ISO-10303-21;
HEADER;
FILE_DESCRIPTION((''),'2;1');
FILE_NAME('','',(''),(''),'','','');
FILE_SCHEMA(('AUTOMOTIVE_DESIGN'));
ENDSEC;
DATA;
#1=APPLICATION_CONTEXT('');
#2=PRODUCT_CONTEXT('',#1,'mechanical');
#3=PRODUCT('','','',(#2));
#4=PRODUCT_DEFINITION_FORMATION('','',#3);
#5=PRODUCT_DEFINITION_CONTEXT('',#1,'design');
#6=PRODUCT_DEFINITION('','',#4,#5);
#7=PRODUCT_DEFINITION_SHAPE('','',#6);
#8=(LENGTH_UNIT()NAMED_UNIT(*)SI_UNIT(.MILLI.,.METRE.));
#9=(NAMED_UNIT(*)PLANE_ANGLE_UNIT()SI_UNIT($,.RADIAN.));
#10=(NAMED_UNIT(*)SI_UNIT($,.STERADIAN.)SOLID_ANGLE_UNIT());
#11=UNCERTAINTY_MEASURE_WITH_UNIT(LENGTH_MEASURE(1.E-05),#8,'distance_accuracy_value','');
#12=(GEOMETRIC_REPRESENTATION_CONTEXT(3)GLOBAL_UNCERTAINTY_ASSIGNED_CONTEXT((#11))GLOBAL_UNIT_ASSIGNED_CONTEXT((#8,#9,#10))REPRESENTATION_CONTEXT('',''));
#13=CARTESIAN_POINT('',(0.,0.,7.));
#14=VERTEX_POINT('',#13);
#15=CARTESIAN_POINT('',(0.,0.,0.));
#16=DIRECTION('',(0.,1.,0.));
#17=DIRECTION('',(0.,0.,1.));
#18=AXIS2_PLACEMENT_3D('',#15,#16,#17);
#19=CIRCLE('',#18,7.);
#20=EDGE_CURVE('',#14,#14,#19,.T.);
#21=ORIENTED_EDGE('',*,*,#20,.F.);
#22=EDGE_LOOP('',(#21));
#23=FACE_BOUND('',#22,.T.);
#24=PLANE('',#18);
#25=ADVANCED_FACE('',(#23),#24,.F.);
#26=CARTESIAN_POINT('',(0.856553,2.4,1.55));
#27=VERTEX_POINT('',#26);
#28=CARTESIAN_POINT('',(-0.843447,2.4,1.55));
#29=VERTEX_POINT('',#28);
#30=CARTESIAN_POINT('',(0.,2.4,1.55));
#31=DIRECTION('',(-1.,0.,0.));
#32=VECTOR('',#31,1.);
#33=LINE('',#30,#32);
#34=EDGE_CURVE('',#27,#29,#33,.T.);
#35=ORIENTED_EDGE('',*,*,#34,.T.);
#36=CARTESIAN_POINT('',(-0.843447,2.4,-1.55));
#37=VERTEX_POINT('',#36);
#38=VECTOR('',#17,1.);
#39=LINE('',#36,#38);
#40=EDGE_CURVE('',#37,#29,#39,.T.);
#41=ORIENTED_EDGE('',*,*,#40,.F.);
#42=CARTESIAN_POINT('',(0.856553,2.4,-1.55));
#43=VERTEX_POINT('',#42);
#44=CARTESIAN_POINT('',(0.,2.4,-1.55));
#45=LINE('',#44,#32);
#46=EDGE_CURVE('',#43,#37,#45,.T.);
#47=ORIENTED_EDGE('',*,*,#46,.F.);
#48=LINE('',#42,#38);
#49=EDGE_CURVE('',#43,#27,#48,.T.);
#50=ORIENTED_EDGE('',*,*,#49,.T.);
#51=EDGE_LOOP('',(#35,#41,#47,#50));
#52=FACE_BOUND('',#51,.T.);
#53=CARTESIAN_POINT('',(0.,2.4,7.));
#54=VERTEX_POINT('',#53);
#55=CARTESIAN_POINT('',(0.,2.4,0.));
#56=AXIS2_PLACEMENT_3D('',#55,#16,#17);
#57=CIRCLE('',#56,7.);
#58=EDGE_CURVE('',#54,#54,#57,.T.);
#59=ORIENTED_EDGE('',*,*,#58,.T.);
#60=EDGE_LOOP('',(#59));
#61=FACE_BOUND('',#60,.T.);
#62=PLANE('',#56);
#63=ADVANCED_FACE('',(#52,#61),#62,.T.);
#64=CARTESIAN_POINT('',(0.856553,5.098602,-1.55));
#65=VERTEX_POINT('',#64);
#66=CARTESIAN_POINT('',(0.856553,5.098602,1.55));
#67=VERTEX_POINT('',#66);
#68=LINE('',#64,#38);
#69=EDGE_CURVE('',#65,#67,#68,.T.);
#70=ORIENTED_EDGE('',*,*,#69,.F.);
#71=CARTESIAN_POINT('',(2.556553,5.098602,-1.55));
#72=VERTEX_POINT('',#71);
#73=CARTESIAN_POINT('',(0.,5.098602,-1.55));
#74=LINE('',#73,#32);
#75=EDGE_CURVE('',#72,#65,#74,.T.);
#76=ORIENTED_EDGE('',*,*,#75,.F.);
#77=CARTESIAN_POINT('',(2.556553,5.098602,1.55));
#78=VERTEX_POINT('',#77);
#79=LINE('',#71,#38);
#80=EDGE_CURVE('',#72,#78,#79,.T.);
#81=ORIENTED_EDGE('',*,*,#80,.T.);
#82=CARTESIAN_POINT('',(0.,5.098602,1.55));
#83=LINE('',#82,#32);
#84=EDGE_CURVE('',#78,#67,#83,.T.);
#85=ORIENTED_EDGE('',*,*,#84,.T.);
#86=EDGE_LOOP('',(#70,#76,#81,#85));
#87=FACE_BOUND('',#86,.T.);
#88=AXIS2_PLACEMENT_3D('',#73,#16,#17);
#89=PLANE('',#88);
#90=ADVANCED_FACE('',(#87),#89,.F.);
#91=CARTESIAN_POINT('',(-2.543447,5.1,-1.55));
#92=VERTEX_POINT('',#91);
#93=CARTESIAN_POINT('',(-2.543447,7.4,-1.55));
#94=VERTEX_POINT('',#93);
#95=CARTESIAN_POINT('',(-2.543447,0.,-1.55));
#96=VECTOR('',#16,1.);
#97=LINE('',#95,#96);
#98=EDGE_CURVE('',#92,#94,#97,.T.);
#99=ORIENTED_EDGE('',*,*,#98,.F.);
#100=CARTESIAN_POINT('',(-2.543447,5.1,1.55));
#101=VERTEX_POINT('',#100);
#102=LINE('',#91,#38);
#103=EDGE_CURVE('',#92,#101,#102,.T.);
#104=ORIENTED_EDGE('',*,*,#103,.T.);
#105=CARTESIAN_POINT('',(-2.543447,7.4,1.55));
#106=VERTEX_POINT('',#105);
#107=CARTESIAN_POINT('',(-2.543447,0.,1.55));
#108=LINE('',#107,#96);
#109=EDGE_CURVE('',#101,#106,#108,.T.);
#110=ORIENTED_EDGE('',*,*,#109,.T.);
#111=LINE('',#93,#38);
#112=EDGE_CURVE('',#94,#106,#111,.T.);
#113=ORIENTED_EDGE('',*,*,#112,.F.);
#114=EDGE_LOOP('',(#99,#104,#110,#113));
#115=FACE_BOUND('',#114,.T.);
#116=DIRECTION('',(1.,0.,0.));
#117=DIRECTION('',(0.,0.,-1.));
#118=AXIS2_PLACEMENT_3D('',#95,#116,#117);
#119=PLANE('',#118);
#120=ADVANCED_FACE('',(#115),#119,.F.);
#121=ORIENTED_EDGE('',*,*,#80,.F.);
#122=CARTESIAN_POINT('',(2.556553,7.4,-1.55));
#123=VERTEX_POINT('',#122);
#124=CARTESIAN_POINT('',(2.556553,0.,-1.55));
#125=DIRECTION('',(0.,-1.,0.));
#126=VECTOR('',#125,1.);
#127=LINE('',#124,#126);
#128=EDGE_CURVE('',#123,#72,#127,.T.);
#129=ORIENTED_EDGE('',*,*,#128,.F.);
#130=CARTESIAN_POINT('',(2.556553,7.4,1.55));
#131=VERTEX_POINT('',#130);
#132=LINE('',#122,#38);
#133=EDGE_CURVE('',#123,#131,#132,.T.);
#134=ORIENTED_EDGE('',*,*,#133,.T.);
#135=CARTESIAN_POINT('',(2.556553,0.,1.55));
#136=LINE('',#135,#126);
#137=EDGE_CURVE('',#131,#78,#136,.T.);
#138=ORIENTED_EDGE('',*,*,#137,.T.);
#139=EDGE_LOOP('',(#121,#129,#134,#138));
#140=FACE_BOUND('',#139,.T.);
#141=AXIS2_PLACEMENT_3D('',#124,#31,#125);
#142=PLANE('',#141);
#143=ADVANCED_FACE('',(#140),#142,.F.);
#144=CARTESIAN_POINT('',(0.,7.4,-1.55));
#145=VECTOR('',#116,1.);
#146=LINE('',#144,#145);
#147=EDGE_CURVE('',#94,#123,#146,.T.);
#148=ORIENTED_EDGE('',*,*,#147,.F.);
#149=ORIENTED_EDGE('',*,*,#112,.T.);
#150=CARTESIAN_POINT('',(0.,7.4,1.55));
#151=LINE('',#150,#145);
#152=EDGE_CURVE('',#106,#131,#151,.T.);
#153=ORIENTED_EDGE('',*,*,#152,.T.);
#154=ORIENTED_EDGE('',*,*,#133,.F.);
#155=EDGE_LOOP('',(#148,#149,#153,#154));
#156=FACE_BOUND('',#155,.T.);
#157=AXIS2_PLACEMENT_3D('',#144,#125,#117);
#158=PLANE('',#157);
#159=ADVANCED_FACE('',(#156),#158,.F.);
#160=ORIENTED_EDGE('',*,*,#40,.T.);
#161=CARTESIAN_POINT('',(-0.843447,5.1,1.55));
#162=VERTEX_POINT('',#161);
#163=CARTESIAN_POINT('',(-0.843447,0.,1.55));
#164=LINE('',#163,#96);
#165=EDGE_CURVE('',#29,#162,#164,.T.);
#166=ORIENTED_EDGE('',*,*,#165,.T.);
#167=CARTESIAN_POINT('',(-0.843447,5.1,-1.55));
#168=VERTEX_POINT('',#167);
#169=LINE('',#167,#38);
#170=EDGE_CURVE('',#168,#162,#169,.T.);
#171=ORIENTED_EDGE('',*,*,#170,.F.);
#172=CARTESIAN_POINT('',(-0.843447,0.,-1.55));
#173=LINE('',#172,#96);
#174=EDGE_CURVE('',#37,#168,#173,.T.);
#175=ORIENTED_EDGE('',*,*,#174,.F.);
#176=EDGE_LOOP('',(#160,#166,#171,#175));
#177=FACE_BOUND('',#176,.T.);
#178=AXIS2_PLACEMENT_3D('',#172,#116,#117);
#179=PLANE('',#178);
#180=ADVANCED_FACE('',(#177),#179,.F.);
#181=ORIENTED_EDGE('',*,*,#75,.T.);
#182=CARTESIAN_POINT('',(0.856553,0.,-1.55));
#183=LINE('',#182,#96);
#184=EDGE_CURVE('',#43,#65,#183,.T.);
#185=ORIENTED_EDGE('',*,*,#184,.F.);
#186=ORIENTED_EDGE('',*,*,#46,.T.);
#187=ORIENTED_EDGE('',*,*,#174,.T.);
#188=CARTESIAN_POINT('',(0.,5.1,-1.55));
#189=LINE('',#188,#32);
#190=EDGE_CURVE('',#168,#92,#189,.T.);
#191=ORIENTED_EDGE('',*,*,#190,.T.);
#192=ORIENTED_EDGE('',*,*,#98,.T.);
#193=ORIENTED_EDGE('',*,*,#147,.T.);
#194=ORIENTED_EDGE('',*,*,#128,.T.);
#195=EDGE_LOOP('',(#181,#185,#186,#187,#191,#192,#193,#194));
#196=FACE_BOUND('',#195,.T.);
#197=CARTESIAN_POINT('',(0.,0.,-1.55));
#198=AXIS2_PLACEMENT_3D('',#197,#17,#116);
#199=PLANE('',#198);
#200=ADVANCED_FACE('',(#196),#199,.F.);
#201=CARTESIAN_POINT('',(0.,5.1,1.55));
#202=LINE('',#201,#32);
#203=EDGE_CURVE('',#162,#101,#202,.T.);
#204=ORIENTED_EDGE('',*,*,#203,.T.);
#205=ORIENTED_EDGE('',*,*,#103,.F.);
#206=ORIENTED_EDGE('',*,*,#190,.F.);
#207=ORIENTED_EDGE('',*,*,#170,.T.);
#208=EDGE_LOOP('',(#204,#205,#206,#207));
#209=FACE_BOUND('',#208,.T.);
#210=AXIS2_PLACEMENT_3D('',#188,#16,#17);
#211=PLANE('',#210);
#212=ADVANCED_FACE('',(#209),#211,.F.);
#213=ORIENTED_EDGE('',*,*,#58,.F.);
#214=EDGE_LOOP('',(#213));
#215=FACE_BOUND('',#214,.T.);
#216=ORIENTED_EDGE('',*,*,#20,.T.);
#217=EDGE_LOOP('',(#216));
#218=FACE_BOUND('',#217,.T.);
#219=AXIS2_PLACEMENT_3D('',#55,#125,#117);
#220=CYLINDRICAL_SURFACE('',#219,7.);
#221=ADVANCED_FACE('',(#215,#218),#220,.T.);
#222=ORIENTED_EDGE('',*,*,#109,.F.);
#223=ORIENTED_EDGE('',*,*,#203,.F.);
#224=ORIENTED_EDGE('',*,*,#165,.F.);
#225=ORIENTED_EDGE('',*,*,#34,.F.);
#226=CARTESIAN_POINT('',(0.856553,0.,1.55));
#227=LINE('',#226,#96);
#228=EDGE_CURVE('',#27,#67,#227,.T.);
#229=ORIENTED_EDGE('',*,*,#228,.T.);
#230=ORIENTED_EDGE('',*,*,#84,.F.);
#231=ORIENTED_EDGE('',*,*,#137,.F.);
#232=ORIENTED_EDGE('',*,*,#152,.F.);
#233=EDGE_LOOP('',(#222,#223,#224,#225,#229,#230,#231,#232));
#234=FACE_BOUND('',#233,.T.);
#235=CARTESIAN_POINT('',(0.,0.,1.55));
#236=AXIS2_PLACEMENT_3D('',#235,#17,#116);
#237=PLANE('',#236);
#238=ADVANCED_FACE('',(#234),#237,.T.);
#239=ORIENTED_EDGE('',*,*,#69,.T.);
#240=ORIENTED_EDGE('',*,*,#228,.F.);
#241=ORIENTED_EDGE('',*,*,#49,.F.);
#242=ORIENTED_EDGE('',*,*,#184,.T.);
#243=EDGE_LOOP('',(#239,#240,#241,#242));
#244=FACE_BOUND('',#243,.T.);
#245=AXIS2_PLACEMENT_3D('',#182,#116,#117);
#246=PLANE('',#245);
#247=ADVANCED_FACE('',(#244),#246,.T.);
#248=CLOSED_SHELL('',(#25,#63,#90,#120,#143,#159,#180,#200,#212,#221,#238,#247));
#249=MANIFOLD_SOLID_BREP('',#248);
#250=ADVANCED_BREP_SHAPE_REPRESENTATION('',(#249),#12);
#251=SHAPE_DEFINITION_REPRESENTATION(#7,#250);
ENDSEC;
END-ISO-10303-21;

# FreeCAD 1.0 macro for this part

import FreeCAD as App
import Part
import Sketcher
from FreeCAD import Vector
Q = App.Units.Quantity


def add_polygon(sketch, points):
    """Adds a closed chain of lines whose ends are joined by coincident constraints."""
    first, n = sketch.GeometryCount, len(points)
    for a, b in zip(points, points[1:] + points[:1]):
        sketch.addGeometry(Part.LineSegment(App.Vector(*a, 0), App.Vector(*b, 0)), False)
    for i in range(n):
        sketch.addConstraint(Sketcher.Constraint("Coincident", first + i, 2, first + (i + 1) % n, 1))

doc = App.newDocument("Part")
params = doc.addObject("Spreadsheet::Sheet", "Params")
for row, (alias, value) in enumerate([
    ("sketch1_diameter", "14 mm"),
    ("pad1_length", "2.4 mm"),
    ("sketch2_width", "1.7 mm"),
    ("sketch2_height", "2.3 mm"),
    ("sketch2_height2", "2.7 mm"),
    ("pad2_length", "1.55 mm"),
    ("pad2_length2", "1.55 mm"),
], start=1):
    params.set(f"A{row}", alias)
    params.set(f"B{row}", "=" + value)
    params.setAlias(f"B{row}", alias)

body = doc.addObject("PartDesign::Body", "Body")

sketch1 = doc.addObject("Sketcher::SketchObject", "Sketch")
body.addObject(sketch1)
sketch1.AttachmentSupport = (doc.XZ_Plane, [""])
sketch1.MapMode = "FlatFace"
sketch1.addGeometry(Part.Circle(Vector(0, 0, 0), Vector(0, 0, 1), 7), False)
sketch1.addConstraint(Sketcher.Constraint("Coincident", 0, 3, -1, 1))
sketch1.addConstraint(Sketcher.Constraint("Diameter", 0, Q("14 mm")))
sketch1.setExpression("Constraints[1]", "Params.sketch1_diameter")
pad1 = doc.addObject("PartDesign::Pad", "Pad")
body.addObject(pad1)
pad1.Profile = sketch1
pad1.setExpression("Length", "Params.pad1_length")
pad1.Reversed = True

sketch2 = doc.addObject("Sketcher::SketchObject", "Sketch001")
body.addObject(sketch2)
sketch2.AttachmentSupport = (doc.XY_Plane, [""])
sketch2.MapMode = "FlatFace"
add_polygon(sketch2, [(-0.843447, 2.4), (0.856553, 2.4), (0.856553, 5.098602), (2.556553, 5.098602), (2.556553, 7.4), (-2.543447, 7.4), (-2.543447, 5.1), (-0.843447, 5.1)])
sketch2.addConstraint(Sketcher.Constraint("Horizontal", 0))
sketch2.addConstraint(Sketcher.Constraint("Vertical", 1))
sketch2.addConstraint(Sketcher.Constraint("Horizontal", 2))
sketch2.addConstraint(Sketcher.Constraint("Vertical", 3))
sketch2.addConstraint(Sketcher.Constraint("Horizontal", 4))
sketch2.addConstraint(Sketcher.Constraint("Vertical", 5))
sketch2.addConstraint(Sketcher.Constraint("Horizontal", 6))
sketch2.addConstraint(Sketcher.Constraint("Vertical", 7))
sketch2.addConstraint(Sketcher.Constraint("Equal", 0, 2))
sketch2.addConstraint(Sketcher.Constraint("Equal", 2, 6))
sketch2.addConstraint(Sketcher.Constraint("DistanceX", 0, 1, 0, 2, Q("1.7 mm")))
sketch2.addConstraint(Sketcher.Constraint("DistanceY", 5, 2, 5, 1, Q("2.3 mm")))
sketch2.addConstraint(Sketcher.Constraint("DistanceY", 7, 2, 7, 1, Q("2.7 mm")))
sketch2.addConstraint(Sketcher.Constraint("DistanceY", -1, 1, 0, 2, Q("2.4 mm")))
sketch2.addConstraint(Sketcher.Constraint("DistanceY", 1, 1, 1, 2, Q("2.698602 mm")))
sketch2.addConstraint(Sketcher.Constraint("DistanceX", -1, 1, 0, 2, Q("0.856553 mm")))
sketch2.setExpression("Constraints[18]", "Params.sketch2_width")
sketch2.setExpression("Constraints[19]", "Params.sketch2_height")
sketch2.setExpression("Constraints[20]", "Params.sketch2_height2")
pad2 = doc.addObject("PartDesign::Pad", "Pad001")
body.addObject(pad2)
pad2.Profile = sketch2
pad2.Type = "TwoLengths"
pad2.setExpression("Length", "Params.pad2_length")
pad2.setExpression("Length2", "Params.pad2_length2")

doc.recompute()
